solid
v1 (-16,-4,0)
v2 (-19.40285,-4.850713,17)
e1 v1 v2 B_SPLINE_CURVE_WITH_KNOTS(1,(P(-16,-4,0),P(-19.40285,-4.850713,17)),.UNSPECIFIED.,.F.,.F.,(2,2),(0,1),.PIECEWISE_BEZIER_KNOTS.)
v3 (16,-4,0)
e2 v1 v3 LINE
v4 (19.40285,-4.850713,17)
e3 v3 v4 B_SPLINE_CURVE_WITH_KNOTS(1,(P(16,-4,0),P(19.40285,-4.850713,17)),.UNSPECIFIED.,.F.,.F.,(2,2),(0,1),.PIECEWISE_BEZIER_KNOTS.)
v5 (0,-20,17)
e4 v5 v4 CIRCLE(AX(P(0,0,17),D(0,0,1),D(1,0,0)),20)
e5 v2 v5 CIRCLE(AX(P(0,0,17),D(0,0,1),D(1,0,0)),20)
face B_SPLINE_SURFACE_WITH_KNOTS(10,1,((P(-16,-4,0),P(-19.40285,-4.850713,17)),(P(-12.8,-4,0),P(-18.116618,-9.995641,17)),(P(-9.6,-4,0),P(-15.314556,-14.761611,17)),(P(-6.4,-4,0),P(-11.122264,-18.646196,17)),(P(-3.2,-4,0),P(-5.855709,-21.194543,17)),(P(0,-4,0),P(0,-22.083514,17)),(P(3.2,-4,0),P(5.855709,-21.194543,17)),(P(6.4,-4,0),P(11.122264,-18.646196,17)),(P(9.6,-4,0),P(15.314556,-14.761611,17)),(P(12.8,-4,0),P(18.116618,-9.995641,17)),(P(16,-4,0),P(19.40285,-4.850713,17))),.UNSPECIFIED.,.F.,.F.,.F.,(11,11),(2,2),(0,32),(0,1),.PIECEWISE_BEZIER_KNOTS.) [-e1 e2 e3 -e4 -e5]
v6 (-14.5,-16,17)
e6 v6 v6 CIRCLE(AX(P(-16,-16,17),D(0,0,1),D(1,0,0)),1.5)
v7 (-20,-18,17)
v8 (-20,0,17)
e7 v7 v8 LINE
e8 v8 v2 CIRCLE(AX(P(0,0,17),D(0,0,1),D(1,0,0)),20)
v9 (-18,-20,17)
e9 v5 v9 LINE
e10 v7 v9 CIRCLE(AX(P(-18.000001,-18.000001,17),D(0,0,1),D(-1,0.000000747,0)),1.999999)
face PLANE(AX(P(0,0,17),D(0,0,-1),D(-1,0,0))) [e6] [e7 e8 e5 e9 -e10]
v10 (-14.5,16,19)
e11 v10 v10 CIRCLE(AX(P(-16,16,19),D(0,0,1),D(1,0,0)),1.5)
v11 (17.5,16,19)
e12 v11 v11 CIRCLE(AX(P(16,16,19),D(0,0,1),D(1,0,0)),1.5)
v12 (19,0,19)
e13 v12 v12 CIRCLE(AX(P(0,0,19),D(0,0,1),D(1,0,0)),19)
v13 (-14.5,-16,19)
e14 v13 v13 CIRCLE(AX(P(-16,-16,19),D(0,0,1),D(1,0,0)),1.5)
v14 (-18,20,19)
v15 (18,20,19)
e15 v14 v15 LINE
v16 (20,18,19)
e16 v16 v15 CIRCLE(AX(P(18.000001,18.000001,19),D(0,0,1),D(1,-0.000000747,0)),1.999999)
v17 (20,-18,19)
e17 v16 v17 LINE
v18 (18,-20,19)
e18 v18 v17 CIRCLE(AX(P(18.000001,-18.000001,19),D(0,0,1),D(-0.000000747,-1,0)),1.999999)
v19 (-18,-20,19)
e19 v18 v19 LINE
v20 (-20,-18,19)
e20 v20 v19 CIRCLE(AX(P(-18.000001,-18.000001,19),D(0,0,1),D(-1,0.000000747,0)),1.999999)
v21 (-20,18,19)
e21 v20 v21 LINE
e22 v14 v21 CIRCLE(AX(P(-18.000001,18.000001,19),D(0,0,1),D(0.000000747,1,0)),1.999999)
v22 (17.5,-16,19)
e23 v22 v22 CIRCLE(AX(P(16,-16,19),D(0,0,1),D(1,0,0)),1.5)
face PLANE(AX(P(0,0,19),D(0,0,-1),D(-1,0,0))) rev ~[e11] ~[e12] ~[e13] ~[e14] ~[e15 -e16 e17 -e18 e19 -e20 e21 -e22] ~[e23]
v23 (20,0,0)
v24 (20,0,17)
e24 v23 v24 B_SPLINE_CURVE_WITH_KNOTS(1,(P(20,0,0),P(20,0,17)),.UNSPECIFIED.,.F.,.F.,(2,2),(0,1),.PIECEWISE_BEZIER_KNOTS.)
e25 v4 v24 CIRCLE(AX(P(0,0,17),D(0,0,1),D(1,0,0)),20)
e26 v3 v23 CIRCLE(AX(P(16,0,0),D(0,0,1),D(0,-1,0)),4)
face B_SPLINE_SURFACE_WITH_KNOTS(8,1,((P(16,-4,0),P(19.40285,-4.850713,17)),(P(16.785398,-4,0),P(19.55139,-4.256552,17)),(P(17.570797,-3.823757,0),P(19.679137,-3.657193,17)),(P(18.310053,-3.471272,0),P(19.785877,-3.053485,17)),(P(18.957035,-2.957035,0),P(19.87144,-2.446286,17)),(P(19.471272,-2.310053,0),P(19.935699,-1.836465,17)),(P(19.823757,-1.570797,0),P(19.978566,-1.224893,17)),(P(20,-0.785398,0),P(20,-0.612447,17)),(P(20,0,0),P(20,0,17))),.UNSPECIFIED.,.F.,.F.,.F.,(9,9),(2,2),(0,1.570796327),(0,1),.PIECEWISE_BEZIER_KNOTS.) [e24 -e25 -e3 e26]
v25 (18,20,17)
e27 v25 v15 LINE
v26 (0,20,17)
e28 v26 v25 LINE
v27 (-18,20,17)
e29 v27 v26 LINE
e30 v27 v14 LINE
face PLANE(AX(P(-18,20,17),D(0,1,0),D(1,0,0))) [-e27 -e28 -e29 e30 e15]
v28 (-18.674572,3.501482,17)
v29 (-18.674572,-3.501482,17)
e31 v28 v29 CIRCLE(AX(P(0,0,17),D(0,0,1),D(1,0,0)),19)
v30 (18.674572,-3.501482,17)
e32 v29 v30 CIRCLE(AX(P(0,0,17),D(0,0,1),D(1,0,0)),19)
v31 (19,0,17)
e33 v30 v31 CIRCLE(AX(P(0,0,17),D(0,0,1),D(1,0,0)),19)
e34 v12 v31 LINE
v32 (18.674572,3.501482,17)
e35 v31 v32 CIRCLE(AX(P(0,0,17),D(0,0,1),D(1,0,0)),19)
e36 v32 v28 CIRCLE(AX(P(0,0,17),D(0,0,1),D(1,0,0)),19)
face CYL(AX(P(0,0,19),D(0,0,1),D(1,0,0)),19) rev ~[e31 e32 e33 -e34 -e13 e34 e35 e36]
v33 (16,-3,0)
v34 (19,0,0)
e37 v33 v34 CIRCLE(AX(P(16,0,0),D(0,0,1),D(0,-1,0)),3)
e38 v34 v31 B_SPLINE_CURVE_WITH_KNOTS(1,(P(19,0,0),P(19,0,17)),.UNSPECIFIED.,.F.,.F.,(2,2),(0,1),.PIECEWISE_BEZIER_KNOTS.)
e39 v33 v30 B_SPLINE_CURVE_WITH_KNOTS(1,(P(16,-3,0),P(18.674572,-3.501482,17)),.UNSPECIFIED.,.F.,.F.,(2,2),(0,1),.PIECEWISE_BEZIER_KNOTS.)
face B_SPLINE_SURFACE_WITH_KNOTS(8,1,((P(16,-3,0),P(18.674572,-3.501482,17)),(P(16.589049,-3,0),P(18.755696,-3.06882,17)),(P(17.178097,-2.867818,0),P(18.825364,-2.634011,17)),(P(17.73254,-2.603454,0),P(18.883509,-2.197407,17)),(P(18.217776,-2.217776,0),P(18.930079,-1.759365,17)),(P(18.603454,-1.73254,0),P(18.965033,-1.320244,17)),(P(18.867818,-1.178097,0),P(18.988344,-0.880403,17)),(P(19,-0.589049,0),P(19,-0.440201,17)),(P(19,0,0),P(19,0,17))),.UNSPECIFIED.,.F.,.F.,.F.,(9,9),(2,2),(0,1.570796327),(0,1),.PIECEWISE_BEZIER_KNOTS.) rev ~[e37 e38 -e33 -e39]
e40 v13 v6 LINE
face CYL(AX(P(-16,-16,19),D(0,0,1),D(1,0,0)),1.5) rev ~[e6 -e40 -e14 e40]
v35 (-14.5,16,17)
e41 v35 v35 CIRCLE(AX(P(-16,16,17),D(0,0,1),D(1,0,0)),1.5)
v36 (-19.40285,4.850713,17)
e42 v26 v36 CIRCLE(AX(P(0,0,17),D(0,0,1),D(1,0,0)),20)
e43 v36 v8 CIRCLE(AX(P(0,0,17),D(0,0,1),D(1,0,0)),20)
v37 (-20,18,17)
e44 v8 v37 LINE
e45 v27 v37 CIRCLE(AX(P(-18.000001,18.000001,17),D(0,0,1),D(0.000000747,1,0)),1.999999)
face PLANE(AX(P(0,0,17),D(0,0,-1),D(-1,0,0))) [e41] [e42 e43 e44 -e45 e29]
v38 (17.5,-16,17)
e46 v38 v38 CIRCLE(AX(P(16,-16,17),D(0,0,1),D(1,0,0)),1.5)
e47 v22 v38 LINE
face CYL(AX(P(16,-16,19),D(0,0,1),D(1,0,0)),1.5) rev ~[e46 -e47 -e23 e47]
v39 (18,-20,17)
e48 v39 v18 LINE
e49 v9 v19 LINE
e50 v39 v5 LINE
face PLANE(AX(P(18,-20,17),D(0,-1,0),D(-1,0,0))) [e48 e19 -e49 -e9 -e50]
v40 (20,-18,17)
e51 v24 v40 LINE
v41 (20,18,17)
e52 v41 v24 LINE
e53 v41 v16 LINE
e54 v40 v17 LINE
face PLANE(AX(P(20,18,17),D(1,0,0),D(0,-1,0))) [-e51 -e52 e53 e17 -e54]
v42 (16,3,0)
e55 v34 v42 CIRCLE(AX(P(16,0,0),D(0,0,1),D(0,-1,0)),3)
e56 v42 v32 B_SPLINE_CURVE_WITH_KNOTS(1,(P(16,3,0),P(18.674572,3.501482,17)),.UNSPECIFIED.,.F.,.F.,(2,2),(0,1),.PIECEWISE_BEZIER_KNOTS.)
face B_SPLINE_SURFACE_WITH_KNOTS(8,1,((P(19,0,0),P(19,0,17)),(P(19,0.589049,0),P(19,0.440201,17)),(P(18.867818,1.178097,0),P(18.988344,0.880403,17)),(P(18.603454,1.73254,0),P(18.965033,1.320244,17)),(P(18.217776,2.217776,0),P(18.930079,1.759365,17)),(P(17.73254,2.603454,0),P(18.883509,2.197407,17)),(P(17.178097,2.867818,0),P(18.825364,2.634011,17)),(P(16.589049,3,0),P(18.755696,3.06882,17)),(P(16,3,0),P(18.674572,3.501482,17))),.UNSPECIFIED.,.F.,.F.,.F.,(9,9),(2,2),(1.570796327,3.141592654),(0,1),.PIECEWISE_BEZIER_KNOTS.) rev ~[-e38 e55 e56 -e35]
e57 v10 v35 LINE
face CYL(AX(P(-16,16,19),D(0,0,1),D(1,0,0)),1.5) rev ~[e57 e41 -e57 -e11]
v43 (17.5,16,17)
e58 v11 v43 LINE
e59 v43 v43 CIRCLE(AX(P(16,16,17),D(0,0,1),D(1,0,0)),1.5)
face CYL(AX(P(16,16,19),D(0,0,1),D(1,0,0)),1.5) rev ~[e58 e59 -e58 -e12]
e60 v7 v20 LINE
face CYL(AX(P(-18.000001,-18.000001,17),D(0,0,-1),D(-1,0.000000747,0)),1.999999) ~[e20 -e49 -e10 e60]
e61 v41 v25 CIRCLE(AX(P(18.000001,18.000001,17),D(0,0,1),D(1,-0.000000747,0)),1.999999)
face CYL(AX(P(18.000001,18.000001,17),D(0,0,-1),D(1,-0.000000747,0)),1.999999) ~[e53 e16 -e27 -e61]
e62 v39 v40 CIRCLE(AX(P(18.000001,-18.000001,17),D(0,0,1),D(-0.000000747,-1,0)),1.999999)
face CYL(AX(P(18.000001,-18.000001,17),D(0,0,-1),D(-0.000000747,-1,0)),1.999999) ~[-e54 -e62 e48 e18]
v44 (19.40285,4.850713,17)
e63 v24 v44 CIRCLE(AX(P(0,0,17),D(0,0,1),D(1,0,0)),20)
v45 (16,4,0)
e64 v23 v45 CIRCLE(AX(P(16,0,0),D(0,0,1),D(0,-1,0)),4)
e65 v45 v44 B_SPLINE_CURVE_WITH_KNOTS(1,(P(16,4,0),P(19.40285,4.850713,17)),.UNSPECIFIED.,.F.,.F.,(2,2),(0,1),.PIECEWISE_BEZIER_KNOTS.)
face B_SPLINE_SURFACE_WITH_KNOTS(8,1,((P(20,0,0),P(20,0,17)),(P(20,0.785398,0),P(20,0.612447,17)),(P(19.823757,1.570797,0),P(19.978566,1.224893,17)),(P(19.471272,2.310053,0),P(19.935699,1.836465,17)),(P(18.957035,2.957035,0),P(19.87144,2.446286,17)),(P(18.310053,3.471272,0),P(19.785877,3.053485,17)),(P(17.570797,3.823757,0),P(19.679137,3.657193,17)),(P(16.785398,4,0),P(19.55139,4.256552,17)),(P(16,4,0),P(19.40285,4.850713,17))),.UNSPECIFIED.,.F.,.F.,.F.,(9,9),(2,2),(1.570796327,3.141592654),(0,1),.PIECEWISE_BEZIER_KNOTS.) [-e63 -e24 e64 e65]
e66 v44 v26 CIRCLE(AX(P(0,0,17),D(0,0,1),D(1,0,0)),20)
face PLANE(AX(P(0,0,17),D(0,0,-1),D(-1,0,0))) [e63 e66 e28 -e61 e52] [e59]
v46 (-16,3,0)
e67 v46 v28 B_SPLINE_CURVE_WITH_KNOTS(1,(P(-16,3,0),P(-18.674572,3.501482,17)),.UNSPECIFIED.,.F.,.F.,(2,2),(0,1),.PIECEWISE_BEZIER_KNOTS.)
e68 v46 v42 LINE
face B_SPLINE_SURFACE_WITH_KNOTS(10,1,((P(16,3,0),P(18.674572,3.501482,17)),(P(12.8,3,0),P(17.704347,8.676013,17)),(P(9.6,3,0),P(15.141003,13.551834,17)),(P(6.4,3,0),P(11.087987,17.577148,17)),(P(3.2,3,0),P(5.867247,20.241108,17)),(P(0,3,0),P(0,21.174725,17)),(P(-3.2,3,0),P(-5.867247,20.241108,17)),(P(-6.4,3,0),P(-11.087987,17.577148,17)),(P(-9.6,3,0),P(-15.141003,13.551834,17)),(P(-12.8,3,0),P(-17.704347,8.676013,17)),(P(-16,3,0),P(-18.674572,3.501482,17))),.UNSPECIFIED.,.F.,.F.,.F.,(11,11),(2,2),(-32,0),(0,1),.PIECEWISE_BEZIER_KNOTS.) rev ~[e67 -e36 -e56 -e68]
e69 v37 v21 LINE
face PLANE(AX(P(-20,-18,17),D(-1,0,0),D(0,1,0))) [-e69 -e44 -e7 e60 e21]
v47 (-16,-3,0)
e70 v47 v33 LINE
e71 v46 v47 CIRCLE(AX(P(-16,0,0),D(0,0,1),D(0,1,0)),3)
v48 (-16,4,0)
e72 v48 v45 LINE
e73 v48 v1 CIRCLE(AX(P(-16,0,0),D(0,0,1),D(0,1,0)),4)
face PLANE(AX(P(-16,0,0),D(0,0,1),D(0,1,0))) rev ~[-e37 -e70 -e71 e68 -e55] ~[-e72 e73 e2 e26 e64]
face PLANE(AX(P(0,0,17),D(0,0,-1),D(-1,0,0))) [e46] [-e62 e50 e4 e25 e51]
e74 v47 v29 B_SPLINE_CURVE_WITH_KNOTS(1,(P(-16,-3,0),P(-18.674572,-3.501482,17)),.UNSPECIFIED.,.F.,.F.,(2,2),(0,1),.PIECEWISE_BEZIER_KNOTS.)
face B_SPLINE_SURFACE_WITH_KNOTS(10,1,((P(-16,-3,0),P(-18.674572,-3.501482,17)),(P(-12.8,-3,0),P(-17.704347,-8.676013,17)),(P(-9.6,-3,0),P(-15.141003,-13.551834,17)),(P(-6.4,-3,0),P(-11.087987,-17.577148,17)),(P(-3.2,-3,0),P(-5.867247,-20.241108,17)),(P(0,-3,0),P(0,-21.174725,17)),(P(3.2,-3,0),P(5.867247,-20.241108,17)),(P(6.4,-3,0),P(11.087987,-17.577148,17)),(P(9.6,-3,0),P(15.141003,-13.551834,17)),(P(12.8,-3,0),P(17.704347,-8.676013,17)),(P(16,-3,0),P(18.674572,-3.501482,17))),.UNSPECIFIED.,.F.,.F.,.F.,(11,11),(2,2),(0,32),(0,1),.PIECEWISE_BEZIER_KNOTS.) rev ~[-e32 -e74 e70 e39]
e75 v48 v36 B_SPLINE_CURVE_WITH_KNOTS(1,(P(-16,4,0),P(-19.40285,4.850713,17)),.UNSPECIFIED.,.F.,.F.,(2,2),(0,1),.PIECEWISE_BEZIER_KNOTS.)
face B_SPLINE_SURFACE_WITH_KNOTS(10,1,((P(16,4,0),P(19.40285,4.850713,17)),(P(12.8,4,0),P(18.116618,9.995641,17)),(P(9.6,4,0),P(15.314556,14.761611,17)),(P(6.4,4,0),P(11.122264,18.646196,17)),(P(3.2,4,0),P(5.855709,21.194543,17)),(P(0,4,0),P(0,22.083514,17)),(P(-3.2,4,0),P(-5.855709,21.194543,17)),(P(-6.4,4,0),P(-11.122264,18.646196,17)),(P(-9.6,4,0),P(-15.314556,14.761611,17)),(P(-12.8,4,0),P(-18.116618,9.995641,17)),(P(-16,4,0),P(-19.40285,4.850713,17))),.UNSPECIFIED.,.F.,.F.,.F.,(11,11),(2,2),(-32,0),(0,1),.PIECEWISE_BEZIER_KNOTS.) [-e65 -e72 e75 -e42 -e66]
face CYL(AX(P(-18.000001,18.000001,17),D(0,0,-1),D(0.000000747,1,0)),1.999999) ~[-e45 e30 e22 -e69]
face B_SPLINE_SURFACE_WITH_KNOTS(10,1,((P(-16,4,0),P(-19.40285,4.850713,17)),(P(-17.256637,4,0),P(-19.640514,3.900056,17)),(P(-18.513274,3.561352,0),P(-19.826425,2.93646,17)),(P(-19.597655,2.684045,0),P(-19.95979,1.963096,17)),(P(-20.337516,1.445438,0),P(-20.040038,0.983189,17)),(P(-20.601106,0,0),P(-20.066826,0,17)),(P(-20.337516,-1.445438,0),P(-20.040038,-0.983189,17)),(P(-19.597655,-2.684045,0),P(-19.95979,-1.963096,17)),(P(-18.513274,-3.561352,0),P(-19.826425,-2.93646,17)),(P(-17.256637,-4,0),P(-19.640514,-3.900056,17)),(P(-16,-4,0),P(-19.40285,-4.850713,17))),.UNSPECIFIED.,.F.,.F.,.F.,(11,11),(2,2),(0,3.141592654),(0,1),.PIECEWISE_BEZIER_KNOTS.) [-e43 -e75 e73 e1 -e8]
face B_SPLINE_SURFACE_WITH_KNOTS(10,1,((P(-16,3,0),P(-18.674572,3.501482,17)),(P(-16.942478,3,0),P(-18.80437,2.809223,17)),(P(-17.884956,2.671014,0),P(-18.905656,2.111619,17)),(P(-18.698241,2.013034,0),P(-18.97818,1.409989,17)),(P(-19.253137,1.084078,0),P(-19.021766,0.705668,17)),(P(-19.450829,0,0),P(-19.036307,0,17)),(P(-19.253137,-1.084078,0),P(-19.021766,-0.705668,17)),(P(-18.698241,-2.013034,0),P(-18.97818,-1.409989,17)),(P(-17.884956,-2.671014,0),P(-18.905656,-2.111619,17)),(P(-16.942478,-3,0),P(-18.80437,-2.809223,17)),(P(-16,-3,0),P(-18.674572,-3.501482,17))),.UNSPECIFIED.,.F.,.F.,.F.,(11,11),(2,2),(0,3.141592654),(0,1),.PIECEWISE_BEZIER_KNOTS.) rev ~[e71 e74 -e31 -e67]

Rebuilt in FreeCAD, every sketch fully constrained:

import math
import FreeCAD as App
import Part
import Sketcher
Q = App.Units.Quantity

doc = App.newDocument("Part")
body = doc.addObject("PartDesign::Body", "Body")

# Sketch on XY plane
sketch1 = doc.addObject("Sketcher::SketchObject", "Sketch")
body.addObject(sketch1)
sketch1.AttachmentSupport = (doc.XY_Plane, [""])
sketch1.MapMode = "FlatFace"
sketch1.addGeometry([
    Part.ArcOfCircle(Part.Circle(App.Vector(-16, 0, 0), App.Vector(0, 0, 1), 3), math.radians(90), math.radians(270)),
    Part.LineSegment(App.Vector(-16, -3, 0), App.Vector(16, -3, 0)),
    Part.ArcOfCircle(Part.Circle(App.Vector(16, 0, 0), App.Vector(0, 0, 1), 3), math.radians(-90), math.radians(90)),
    Part.LineSegment(App.Vector(16, 3, 0), App.Vector(-16, 3, 0)),
], False)
sketch1.addConstraint([
    Sketcher.Constraint("Tangent", 0, 2, 1, 1),
    Sketcher.Constraint("Tangent", 1, 2, 2, 1),
    Sketcher.Constraint("Tangent", 2, 2, 3, 1),
    Sketcher.Constraint("Tangent", 3, 2, 0, 1),
    Sketcher.Constraint("Horizontal", 1),
    Sketcher.Constraint("Horizontal", 3),
    Sketcher.Constraint("Symmetric", 0, 3, 2, 3, -1, 1),
    Sketcher.Constraint("Radius", 0, Q("3 mm")),
    Sketcher.Constraint("DistanceX", 1, 1, 1, 2, Q("32 mm")),
])

# Sketch on XY plane
sketch2 = doc.addObject("Sketcher::SketchObject", "Sketch001")
body.addObject(sketch2)
sketch2.AttachmentSupport = (doc.XY_Plane, [""])
sketch2.MapMode = "FlatFace"
sketch2.AttachmentOffset = App.Placement(App.Vector(0, 0, 17), App.Rotation())
sketch2.addGeometry(Part.Circle(App.Vector(0, 0, 0), App.Vector(0, 0, 1), 19), False)
sketch2.addConstraint([
    Sketcher.Constraint("Coincident", 0, 3, -1, 1),
    Sketcher.Constraint("Diameter", 0, Q("38 mm")),
])

additiveloft = doc.addObject("PartDesign::AdditiveLoft", "AdditiveLoft")
body.addObject(additiveloft)
additiveloft.Profile = sketch1
additiveloft.Sections = [sketch2]
body2 = doc.addObject("PartDesign::Body", "Body001")

# Sketch on XY plane
sketch3 = doc.addObject("Sketcher::SketchObject", "Sketch002")
body2.addObject(sketch3)
sketch3.AttachmentSupport = (doc.getObject("XY_Plane001"), [""])
sketch3.MapMode = "FlatFace"
sketch3.addGeometry([
    Part.ArcOfCircle(Part.Circle(App.Vector(-16, 0, 0), App.Vector(0, 0, 1), 4), math.radians(90), math.radians(270)),
    Part.LineSegment(App.Vector(-16, -4, 0), App.Vector(16, -4, 0)),
    Part.ArcOfCircle(Part.Circle(App.Vector(16, 0, 0), App.Vector(0, 0, 1), 4), math.radians(-90), math.radians(90)),
    Part.LineSegment(App.Vector(16, 4, 0), App.Vector(-16, 4, 0)),
], False)
sketch3.addConstraint([
    Sketcher.Constraint("Tangent", 0, 2, 1, 1),
    Sketcher.Constraint("Tangent", 1, 2, 2, 1),
    Sketcher.Constraint("Tangent", 2, 2, 3, 1),
    Sketcher.Constraint("Tangent", 3, 2, 0, 1),
    Sketcher.Constraint("Horizontal", 1),
    Sketcher.Constraint("Horizontal", 3),
    Sketcher.Constraint("Symmetric", 0, 3, 2, 3, -1, 1),
    Sketcher.Constraint("Radius", 0, Q("4 mm")),
    Sketcher.Constraint("DistanceX", 1, 1, 1, 2, Q("32 mm")),
])

# Sketch on XY plane
sketch4 = doc.addObject("Sketcher::SketchObject", "Sketch003")
body2.addObject(sketch4)
sketch4.AttachmentSupport = (doc.getObject("XY_Plane001"), [""])
sketch4.MapMode = "FlatFace"
sketch4.AttachmentOffset = App.Placement(App.Vector(0, 0, 17), App.Rotation())
sketch4.addGeometry(Part.Circle(App.Vector(0, 0, 0), App.Vector(0, 0, 1), 20), False)
sketch4.addConstraint([
    Sketcher.Constraint("Coincident", 0, 3, -1, 1),
    Sketcher.Constraint("Diameter", 0, Q("40 mm")),
])

additiveloft2 = doc.addObject("PartDesign::AdditiveLoft", "AdditiveLoft001")
body2.addObject(additiveloft2)
additiveloft2.Profile = sketch3
additiveloft2.Sections = [sketch4]
doc.recompute()

boolean = doc.addObject("PartDesign::Boolean", "Boolean")
body2.addObject(boolean)
boolean.Type = "Cut"
boolean.addObjects([body])

# Sketch on XY plane
sketch5 = doc.addObject("Sketcher::SketchObject", "Sketch004")
body2.addObject(sketch5)
sketch5.AttachmentSupport = (doc.getObject("XY_Plane001"), [""])
sketch5.MapMode = "FlatFace"
sketch5.AttachmentOffset = App.Placement(App.Vector(0, 0, 17), App.Rotation())
sketch5.addGeometry([
    Part.LineSegment(App.Vector(18, 20, 0), App.Vector(-18, 20, 0)),  # 0
    Part.ArcOfCircle(Part.Circle(App.Vector(-18, 18, 0), App.Vector(0, 0, 1), 2), math.radians(90), math.radians(180)),  # 1
    Part.LineSegment(App.Vector(-20, 18, 0), App.Vector(-20, -18, 0)),  # 2
    Part.ArcOfCircle(Part.Circle(App.Vector(-18, -18, 0), App.Vector(0, 0, 1), 2), math.radians(180), math.radians(270)),  # 3
    Part.LineSegment(App.Vector(-18, -20, 0), App.Vector(18, -20, 0)),  # 4
    Part.ArcOfCircle(Part.Circle(App.Vector(18, -18, 0), App.Vector(0, 0, 1), 2), math.radians(-90), math.radians(0)),  # 5
    Part.LineSegment(App.Vector(20, -18, 0), App.Vector(20, 18, 0)),  # 6
    Part.ArcOfCircle(Part.Circle(App.Vector(18, 18, 0), App.Vector(0, 0, 1), 2), math.radians(0), math.radians(90)),  # 7
], False)
sketch5.addConstraint([
    Sketcher.Constraint("Tangent", 0, 2, 1, 1),
    Sketcher.Constraint("Tangent", 1, 2, 2, 1),
    Sketcher.Constraint("Tangent", 2, 2, 3, 1),
    Sketcher.Constraint("Tangent", 3, 2, 4, 1),
    Sketcher.Constraint("Tangent", 4, 2, 5, 1),
    Sketcher.Constraint("Tangent", 5, 2, 6, 1),
    Sketcher.Constraint("Tangent", 6, 2, 7, 1),
    Sketcher.Constraint("Tangent", 7, 2, 0, 1),
    Sketcher.Constraint("Horizontal", 0),
    Sketcher.Constraint("Vertical", 2),
    Sketcher.Constraint("Horizontal", 4),
    Sketcher.Constraint("Vertical", 6),
    Sketcher.Constraint("Equal", 1, 3),
    Sketcher.Constraint("Equal", 3, 5),
    Sketcher.Constraint("Equal", 5, 7),
    Sketcher.Constraint("Symmetric", 1, 3, 5, 3, -1, 1),
    Sketcher.Constraint("Equal", 4, 2),
    Sketcher.Constraint("Radius", 1, Q("1.999999 mm")),
    Sketcher.Constraint("DistanceX", 0, 2, 0, 1, Q("36 mm")),
])
pad1 = doc.addObject("PartDesign::Pad", "Pad")
body2.addObject(pad1)
pad1.Profile = sketch5
pad1.Length = 2

# Sketch on XY plane
sketch6 = doc.addObject("Sketcher::SketchObject", "Sketch005")
body2.addObject(sketch6)
sketch6.AttachmentSupport = (doc.getObject("XY_Plane001"), [""])
sketch6.MapMode = "FlatFace"
sketch6.AttachmentOffset = App.Placement(App.Vector(0, 0, 19), App.Rotation())
sketch6.addGeometry(Part.Circle(App.Vector(0, 0, 0), App.Vector(0, 0, 1), 19), False)
sketch6.addConstraint([
    Sketcher.Constraint("Coincident", 0, 3, -1, 1),
    Sketcher.Constraint("Diameter", 0, Q("38 mm")),
])
pocket1 = doc.addObject("PartDesign::Pocket", "Pocket")
body2.addObject(pocket1)
pocket1.Profile = sketch6
pocket1.Length = 2

# Sketch on XY plane
sketch7 = doc.addObject("Sketcher::SketchObject", "Sketch006")
body2.addObject(sketch7)
sketch7.AttachmentSupport = (doc.getObject("XY_Plane001"), [""])
sketch7.MapMode = "FlatFace"
sketch7.AttachmentOffset = App.Placement(App.Vector(0, 0, 19), App.Rotation())
sketch7.addGeometry([
    Part.Circle(App.Vector(-16, 16, 0), App.Vector(0, 0, 1), 1.5),
    Part.Circle(App.Vector(16, 16, 0), App.Vector(0, 0, 1), 1.5),
    Part.Circle(App.Vector(-16, -16, 0), App.Vector(0, 0, 1), 1.5),
    Part.Circle(App.Vector(16, -16, 0), App.Vector(0, 0, 1), 1.5),
], False)
sketch7.addConstraint([
    Sketcher.Constraint("Equal", 0, 1),
    Sketcher.Constraint("Equal", 1, 2),
    Sketcher.Constraint("Equal", 2, 3),
    Sketcher.Constraint("Symmetric", 1, 3, 2, 3, -1, 1),
    Sketcher.Constraint("Symmetric", 0, 3, 3, 3, -1, 1),
    Sketcher.Constraint("Symmetric", 0, 3, 1, 3, -2),
    Sketcher.Constraint("Diameter", 0, Q("3 mm")),
    Sketcher.Constraint("DistanceX", 0, 3, -1, 1, Q("16 mm")),
    Sketcher.Constraint("DistanceY", -1, 1, 0, 3, Q("16 mm")),
])
pocket2 = doc.addObject("PartDesign::Pocket", "Pocket001")
body2.addObject(pocket2)
pocket2.Profile = sketch7
pocket2.Length = 5

doc.recompute()
